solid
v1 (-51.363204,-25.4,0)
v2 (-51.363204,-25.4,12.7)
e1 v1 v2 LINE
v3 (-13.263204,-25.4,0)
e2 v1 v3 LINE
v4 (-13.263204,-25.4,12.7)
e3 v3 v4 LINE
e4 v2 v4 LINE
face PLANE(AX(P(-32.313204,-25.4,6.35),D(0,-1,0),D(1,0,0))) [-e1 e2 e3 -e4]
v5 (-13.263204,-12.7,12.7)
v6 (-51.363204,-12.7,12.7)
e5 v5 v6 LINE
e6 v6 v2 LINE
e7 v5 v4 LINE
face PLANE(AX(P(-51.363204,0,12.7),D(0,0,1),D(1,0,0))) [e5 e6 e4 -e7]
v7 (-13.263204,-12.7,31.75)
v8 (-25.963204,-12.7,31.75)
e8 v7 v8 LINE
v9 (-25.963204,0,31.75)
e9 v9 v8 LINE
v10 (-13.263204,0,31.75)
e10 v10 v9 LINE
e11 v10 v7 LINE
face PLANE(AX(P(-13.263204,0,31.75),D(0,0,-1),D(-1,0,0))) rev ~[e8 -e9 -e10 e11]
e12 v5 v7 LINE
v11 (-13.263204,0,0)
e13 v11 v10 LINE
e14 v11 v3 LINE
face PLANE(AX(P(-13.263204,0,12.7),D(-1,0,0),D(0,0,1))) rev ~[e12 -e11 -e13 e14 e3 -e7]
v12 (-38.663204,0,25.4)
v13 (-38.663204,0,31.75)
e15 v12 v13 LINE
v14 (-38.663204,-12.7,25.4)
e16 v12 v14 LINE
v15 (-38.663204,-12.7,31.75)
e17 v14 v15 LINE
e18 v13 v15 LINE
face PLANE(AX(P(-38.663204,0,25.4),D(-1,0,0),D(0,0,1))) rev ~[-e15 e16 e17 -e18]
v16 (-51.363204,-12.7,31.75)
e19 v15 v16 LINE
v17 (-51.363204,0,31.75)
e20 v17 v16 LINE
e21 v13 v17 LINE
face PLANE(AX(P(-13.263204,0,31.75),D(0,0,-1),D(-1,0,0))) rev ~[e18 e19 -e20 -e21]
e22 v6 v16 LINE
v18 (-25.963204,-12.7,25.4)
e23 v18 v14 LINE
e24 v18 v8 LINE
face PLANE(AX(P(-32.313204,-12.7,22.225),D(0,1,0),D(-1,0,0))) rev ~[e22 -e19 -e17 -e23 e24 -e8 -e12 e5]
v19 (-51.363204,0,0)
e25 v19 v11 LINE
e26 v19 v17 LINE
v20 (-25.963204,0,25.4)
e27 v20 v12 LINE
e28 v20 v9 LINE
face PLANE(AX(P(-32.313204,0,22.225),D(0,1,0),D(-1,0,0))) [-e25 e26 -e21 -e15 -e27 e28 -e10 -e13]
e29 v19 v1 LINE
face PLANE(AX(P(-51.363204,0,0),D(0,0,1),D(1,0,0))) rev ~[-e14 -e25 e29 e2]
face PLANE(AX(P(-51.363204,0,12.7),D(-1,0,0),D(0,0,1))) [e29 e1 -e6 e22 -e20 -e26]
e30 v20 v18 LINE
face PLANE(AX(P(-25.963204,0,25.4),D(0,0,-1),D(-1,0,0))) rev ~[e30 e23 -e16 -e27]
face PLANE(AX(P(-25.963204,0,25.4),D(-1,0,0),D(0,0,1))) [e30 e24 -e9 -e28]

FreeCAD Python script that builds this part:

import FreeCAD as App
import Part
import Sketcher

V = App.Vector
Q = App.Units.Quantity


def add_polygon(sketch, points):
    """Adds a closed chain of lines whose ends are joined by coincident constraints."""
    first, n = sketch.GeometryCount, len(points)
    for a, b in zip(points, points[1:] + points[:1]):
        sketch.addGeometry(Part.LineSegment(App.Vector(*a, 0), App.Vector(*b, 0)), False)
    for i in range(n):
        sketch.addConstraint(Sketcher.Constraint("Coincident", first + i, 2, first + (i + 1) % n, 1))

doc = App.newDocument("Part")
params = doc.addObject("Spreadsheet::Sheet", "Params")
for row, (alias, value) in enumerate([
    ("sketch1_width", "1.5 in"),
    ("sketch1_height", "0.5 in"),
    ("pad1_length", "1 in"),
    ("sketch2_width", "1.5 in"),
    ("sketch2_height", "0.75 in"),
    ("pad2_length", "0.5 in"),
    ("sketch3_width", "0.5 in"),
    ("sketch3_height", "0.25 in"),
    ("pocket1_length", "1 in"),
], start=1):
    params.set(f"A{row}", alias)
    params.set(f"B{row}", "=" + value)
    params.setAlias(f"B{row}", alias)

body = doc.addObject("PartDesign::Body", "Body")

sketch1 = doc.addObject("Sketcher::SketchObject", "Sketch")
body.addObject(sketch1)
sketch1.AttachmentSupport = (doc.XZ_Plane, [""])
sketch1.MapMode = "FlatFace"
add_polygon(sketch1, [(-51, 13), (-51, 0), (-13, 0), (-13, 13)])
sketch1.addConstraint([
    Sketcher.Constraint("Vertical", 0),
    Sketcher.Constraint("Horizontal", 1),
    Sketcher.Constraint("Vertical", 2),
    Sketcher.Constraint("Horizontal", 3),
    Sketcher.Constraint("PointOnObject", 0, 2, -1),
    Sketcher.Constraint("DistanceX", 1, 1, 1, 2, Q("1.5 in")),
    Sketcher.Constraint("DistanceY", 0, 2, 0, 1, Q("0.5 in")),
    Sketcher.Constraint("DistanceX", 0, 2, -1, 1, 51.363204),
])
sketch1.setExpression("Constraints[9]", "Params.sketch1_width")
sketch1.setExpression("Constraints[10]", "Params.sketch1_height")
pad1 = doc.addObject("PartDesign::Pad", "Pad")
body.addObject(pad1)
pad1.Profile = sketch1
pad1.setExpression("Length", "Params.pad1_length")

sketch2 = doc.addObject("Sketcher::SketchObject", "Sketch001")
body.addObject(sketch2)
sketch2.AttachmentSupport = (doc.XZ_Plane, [""])
sketch2.MapMode = "FlatFace"
add_polygon(sketch2, [(-13, 32), (-13, 13), (-51, 13), (-51, 32)])
sketch2.addConstraint([
    Sketcher.Constraint("Vertical", 0),
    Sketcher.Constraint("Horizontal", 1),
    Sketcher.Constraint("Vertical", 2),
    Sketcher.Constraint("Horizontal", 3),
    Sketcher.Constraint("DistanceX", 1, 2, 1, 1, Q("1.5 in")),
    Sketcher.Constraint("DistanceY", 0, 2, 0, 1, Q("0.75 in")),
    Sketcher.Constraint("DistanceY", -1, 1, 0, 2, Q("0.5 in")),
    Sketcher.Constraint("DistanceX", 0, 2, -1, 1, 13.263204),
])
sketch2.setExpression("Constraints[8]", "Params.sketch2_width")
sketch2.setExpression("Constraints[9]", "Params.sketch2_height")
pad2 = doc.addObject("PartDesign::Pad", "Pad001")
body.addObject(pad2)
pad2.Profile = sketch2
pad2.setExpression("Length", "Params.pad2_length")

sketch3 = doc.addObject("Sketcher::SketchObject", "Sketch002")
body.addObject(sketch3)
sketch3.AttachmentSupport = (doc.XZ_Plane, [""])
sketch3.MapMode = "FlatFace"
add_polygon(sketch3, [(-26, 32), (-26, 25), (-39, 25), (-39, 32)])
sketch3.addConstraint([
    Sketcher.Constraint("Vertical", 0),
    Sketcher.Constraint("Horizontal", 1),
    Sketcher.Constraint("Vertical", 2),
    Sketcher.Constraint("Horizontal", 3),
    Sketcher.Constraint("DistanceX", 1, 2, 1, 1, Q("0.5 in")),
    Sketcher.Constraint("DistanceY", -1, 1, 0, 2, Q("1 in")),
    Sketcher.Constraint("DistanceY", 0, 2, 0, 1, Q("0.25 in")),
    Sketcher.Constraint("DistanceX", 0, 2, -1, 1, 25.963204),
])
sketch3.setExpression("Constraints[8]", "Params.sketch3_width")
sketch3.setExpression("Constraints[10]", "Params.sketch3_height")
pocket1 = doc.addObject("PartDesign::Pocket", "Pocket")
body.addObject(pocket1)
pocket1.Profile = sketch3
pocket1.setExpression("Length", "Params.pocket1_length")
pocket1.Reversed = True

doc.recompute()
